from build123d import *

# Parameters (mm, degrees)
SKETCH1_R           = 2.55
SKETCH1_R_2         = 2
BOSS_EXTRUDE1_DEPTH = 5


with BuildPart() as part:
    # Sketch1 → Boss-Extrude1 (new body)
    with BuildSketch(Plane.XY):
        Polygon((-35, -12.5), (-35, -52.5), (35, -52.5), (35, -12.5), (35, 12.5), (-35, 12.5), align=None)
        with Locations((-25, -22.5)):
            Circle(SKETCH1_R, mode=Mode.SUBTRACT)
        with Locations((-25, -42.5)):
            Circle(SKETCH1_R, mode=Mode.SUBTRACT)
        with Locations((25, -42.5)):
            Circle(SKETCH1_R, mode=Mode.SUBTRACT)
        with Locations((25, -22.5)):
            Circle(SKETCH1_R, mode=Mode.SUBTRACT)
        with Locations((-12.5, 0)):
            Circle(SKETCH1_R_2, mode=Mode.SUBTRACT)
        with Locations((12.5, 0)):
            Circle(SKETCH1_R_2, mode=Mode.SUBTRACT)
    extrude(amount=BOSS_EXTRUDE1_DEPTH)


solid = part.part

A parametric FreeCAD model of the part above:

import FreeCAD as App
import Part
import Sketcher

V = App.Vector

doc = App.newDocument("Part")
params = doc.addObject("Spreadsheet::Sheet", "Params")
for row, (alias, value) in enumerate([
    ("sketch1_diameter", "4 mm"),
    ("sketch1_diameter2", "5.1 mm"),
    ("sketch1_width", "70 mm"),
    ("sketch1_height", "65 mm"),
    ("pad1_length", "5 mm"),
], start=1):
    params.set(f"A{row}", alias)
    params.set(f"B{row}", "=" + value)
    params.setAlias(f"B{row}", alias)

body = doc.addObject("PartDesign::Body", "Body")

# Sketch on XY plane
sketch1 = doc.addObject("Sketcher::SketchObject", "Sketch")
body.addObject(sketch1)
sketch1.AttachmentSupport = (doc.XY_Plane, [""])
sketch1.MapMode = "FlatFace"
sketch1.addGeometry(Part.LineSegment(V(-35, -52.5, 0), V(35, -52.5, 0)), False)
sketch1.addGeometry(Part.LineSegment(V(35, -52.5, 0), V(35, 12.5, 0)), False)
sketch1.addGeometry(Part.LineSegment(V(35, 12.5, 0), V(-35, 12.5, 0)), False)
sketch1.addGeometry(Part.LineSegment(V(-35, 12.5, 0), V(-35, -52.5, 0)), False)
sketch1.addGeometry(Part.Circle(V(-25, -42.5, 0), V(0, 0, 1), 2.5), False)
sketch1.addGeometry(Part.Circle(V(-25, -22.5, 0), V(0, 0, 1), 2.5), False)
sketch1.addGeometry(Part.Circle(V(25, -42.5, 0), V(0, 0, 1), 2.5), False)
sketch1.addGeometry(Part.Circle(V(25, -22.5, 0), V(0, 0, 1), 2.5), False)
sketch1.addGeometry(Part.Circle(V(-12.5, 0, 0), V(0, 0, 1), 2), False)
sketch1.addGeometry(Part.Circle(V(12.5, 0, 0), V(0, 0, 1), 2), False)
sketch1.addConstraint(Sketcher.Constraint("Coincident", 0, 2, 1, 1))
sketch1.addConstraint(Sketcher.Constraint("Coincident", 1, 2, 2, 1))
sketch1.addConstraint(Sketcher.Constraint("Coincident", 2, 2, 3, 1))
sketch1.addConstraint(Sketcher.Constraint("Coincident", 3, 2, 0, 1))
sketch1.addConstraint(Sketcher.Constraint("Horizontal", 0))
sketch1.addConstraint(Sketcher.Constraint("Vertical", 1))
sketch1.addConstraint(Sketcher.Constraint("Horizontal", 2))
sketch1.addConstraint(Sketcher.Constraint("Vertical", 3))
sketch1.addConstraint(Sketcher.Constraint("Equal", 4, 5))
sketch1.addConstraint(Sketcher.Constraint("Equal", 5, 6))
sketch1.addConstraint(Sketcher.Constraint("Equal", 6, 7))
sketch1.addConstraint(Sketcher.Constraint("Equal", 8, 9))
sketch1.addConstraint(Sketcher.Constraint("Symmetric", 8, 3, 9, 3, -1, 1))
sketch1.addConstraint(Sketcher.Constraint("Symmetric", 4, 3, 6, 3, -2))
sketch1.addConstraint(Sketcher.Constraint("Symmetric", 5, 3, 7, 3, -2))
sketch1.addConstraint(Sketcher.Constraint("PointOnObject", 8, 3, -1))
sketch1.addConstraint(Sketcher.Constraint("Vertical", 4, 3, 5, 3))
sketch1.addConstraint(Sketcher.Constraint("Diameter", 8, 4.0))
sketch1.addConstraint(Sketcher.Constraint("Diameter", 4, 5.1))
sketch1.addConstraint(Sketcher.Constraint("DistanceX", 0, 1, 0, 2, 70.0))
sketch1.addConstraint(Sketcher.Constraint("DistanceY", 1, 1, 1, 2, 65.0))
sketch1.addConstraint(Sketcher.Constraint("DistanceX", 4, 3, -1, 1, 25.0))
sketch1.addConstraint(Sketcher.Constraint("DistanceX", -1, 1, 0, 2, 35.0))
sketch1.addConstraint(Sketcher.Constraint("DistanceY", 4, 3, 5, 3, 20.0))
sketch1.addConstraint(Sketcher.Constraint("DistanceX", 8, 3, 9, 3, 25.0))
sketch1.addConstraint(Sketcher.Constraint("DistanceY", 0, 2, 6, 3, 10.0))
sketch1.addConstraint(Sketcher.Constraint("DistanceY", 4, 3, -1, 1, 42.5))
sketch1.setExpression("Constraints[17]", "Params.sketch1_diameter")
sketch1.setExpression("Constraints[18]", "Params.sketch1_diameter2")
sketch1.setExpression("Constraints[19]", "Params.sketch1_width")
sketch1.setExpression("Constraints[20]", "Params.sketch1_height")
pad1 = doc.addObject("PartDesign::Pad", "Pad")
body.addObject(pad1)
pad1.Profile = sketch1
pad1.setExpression("Length", "Params.pad1_length")

doc.recompute()
